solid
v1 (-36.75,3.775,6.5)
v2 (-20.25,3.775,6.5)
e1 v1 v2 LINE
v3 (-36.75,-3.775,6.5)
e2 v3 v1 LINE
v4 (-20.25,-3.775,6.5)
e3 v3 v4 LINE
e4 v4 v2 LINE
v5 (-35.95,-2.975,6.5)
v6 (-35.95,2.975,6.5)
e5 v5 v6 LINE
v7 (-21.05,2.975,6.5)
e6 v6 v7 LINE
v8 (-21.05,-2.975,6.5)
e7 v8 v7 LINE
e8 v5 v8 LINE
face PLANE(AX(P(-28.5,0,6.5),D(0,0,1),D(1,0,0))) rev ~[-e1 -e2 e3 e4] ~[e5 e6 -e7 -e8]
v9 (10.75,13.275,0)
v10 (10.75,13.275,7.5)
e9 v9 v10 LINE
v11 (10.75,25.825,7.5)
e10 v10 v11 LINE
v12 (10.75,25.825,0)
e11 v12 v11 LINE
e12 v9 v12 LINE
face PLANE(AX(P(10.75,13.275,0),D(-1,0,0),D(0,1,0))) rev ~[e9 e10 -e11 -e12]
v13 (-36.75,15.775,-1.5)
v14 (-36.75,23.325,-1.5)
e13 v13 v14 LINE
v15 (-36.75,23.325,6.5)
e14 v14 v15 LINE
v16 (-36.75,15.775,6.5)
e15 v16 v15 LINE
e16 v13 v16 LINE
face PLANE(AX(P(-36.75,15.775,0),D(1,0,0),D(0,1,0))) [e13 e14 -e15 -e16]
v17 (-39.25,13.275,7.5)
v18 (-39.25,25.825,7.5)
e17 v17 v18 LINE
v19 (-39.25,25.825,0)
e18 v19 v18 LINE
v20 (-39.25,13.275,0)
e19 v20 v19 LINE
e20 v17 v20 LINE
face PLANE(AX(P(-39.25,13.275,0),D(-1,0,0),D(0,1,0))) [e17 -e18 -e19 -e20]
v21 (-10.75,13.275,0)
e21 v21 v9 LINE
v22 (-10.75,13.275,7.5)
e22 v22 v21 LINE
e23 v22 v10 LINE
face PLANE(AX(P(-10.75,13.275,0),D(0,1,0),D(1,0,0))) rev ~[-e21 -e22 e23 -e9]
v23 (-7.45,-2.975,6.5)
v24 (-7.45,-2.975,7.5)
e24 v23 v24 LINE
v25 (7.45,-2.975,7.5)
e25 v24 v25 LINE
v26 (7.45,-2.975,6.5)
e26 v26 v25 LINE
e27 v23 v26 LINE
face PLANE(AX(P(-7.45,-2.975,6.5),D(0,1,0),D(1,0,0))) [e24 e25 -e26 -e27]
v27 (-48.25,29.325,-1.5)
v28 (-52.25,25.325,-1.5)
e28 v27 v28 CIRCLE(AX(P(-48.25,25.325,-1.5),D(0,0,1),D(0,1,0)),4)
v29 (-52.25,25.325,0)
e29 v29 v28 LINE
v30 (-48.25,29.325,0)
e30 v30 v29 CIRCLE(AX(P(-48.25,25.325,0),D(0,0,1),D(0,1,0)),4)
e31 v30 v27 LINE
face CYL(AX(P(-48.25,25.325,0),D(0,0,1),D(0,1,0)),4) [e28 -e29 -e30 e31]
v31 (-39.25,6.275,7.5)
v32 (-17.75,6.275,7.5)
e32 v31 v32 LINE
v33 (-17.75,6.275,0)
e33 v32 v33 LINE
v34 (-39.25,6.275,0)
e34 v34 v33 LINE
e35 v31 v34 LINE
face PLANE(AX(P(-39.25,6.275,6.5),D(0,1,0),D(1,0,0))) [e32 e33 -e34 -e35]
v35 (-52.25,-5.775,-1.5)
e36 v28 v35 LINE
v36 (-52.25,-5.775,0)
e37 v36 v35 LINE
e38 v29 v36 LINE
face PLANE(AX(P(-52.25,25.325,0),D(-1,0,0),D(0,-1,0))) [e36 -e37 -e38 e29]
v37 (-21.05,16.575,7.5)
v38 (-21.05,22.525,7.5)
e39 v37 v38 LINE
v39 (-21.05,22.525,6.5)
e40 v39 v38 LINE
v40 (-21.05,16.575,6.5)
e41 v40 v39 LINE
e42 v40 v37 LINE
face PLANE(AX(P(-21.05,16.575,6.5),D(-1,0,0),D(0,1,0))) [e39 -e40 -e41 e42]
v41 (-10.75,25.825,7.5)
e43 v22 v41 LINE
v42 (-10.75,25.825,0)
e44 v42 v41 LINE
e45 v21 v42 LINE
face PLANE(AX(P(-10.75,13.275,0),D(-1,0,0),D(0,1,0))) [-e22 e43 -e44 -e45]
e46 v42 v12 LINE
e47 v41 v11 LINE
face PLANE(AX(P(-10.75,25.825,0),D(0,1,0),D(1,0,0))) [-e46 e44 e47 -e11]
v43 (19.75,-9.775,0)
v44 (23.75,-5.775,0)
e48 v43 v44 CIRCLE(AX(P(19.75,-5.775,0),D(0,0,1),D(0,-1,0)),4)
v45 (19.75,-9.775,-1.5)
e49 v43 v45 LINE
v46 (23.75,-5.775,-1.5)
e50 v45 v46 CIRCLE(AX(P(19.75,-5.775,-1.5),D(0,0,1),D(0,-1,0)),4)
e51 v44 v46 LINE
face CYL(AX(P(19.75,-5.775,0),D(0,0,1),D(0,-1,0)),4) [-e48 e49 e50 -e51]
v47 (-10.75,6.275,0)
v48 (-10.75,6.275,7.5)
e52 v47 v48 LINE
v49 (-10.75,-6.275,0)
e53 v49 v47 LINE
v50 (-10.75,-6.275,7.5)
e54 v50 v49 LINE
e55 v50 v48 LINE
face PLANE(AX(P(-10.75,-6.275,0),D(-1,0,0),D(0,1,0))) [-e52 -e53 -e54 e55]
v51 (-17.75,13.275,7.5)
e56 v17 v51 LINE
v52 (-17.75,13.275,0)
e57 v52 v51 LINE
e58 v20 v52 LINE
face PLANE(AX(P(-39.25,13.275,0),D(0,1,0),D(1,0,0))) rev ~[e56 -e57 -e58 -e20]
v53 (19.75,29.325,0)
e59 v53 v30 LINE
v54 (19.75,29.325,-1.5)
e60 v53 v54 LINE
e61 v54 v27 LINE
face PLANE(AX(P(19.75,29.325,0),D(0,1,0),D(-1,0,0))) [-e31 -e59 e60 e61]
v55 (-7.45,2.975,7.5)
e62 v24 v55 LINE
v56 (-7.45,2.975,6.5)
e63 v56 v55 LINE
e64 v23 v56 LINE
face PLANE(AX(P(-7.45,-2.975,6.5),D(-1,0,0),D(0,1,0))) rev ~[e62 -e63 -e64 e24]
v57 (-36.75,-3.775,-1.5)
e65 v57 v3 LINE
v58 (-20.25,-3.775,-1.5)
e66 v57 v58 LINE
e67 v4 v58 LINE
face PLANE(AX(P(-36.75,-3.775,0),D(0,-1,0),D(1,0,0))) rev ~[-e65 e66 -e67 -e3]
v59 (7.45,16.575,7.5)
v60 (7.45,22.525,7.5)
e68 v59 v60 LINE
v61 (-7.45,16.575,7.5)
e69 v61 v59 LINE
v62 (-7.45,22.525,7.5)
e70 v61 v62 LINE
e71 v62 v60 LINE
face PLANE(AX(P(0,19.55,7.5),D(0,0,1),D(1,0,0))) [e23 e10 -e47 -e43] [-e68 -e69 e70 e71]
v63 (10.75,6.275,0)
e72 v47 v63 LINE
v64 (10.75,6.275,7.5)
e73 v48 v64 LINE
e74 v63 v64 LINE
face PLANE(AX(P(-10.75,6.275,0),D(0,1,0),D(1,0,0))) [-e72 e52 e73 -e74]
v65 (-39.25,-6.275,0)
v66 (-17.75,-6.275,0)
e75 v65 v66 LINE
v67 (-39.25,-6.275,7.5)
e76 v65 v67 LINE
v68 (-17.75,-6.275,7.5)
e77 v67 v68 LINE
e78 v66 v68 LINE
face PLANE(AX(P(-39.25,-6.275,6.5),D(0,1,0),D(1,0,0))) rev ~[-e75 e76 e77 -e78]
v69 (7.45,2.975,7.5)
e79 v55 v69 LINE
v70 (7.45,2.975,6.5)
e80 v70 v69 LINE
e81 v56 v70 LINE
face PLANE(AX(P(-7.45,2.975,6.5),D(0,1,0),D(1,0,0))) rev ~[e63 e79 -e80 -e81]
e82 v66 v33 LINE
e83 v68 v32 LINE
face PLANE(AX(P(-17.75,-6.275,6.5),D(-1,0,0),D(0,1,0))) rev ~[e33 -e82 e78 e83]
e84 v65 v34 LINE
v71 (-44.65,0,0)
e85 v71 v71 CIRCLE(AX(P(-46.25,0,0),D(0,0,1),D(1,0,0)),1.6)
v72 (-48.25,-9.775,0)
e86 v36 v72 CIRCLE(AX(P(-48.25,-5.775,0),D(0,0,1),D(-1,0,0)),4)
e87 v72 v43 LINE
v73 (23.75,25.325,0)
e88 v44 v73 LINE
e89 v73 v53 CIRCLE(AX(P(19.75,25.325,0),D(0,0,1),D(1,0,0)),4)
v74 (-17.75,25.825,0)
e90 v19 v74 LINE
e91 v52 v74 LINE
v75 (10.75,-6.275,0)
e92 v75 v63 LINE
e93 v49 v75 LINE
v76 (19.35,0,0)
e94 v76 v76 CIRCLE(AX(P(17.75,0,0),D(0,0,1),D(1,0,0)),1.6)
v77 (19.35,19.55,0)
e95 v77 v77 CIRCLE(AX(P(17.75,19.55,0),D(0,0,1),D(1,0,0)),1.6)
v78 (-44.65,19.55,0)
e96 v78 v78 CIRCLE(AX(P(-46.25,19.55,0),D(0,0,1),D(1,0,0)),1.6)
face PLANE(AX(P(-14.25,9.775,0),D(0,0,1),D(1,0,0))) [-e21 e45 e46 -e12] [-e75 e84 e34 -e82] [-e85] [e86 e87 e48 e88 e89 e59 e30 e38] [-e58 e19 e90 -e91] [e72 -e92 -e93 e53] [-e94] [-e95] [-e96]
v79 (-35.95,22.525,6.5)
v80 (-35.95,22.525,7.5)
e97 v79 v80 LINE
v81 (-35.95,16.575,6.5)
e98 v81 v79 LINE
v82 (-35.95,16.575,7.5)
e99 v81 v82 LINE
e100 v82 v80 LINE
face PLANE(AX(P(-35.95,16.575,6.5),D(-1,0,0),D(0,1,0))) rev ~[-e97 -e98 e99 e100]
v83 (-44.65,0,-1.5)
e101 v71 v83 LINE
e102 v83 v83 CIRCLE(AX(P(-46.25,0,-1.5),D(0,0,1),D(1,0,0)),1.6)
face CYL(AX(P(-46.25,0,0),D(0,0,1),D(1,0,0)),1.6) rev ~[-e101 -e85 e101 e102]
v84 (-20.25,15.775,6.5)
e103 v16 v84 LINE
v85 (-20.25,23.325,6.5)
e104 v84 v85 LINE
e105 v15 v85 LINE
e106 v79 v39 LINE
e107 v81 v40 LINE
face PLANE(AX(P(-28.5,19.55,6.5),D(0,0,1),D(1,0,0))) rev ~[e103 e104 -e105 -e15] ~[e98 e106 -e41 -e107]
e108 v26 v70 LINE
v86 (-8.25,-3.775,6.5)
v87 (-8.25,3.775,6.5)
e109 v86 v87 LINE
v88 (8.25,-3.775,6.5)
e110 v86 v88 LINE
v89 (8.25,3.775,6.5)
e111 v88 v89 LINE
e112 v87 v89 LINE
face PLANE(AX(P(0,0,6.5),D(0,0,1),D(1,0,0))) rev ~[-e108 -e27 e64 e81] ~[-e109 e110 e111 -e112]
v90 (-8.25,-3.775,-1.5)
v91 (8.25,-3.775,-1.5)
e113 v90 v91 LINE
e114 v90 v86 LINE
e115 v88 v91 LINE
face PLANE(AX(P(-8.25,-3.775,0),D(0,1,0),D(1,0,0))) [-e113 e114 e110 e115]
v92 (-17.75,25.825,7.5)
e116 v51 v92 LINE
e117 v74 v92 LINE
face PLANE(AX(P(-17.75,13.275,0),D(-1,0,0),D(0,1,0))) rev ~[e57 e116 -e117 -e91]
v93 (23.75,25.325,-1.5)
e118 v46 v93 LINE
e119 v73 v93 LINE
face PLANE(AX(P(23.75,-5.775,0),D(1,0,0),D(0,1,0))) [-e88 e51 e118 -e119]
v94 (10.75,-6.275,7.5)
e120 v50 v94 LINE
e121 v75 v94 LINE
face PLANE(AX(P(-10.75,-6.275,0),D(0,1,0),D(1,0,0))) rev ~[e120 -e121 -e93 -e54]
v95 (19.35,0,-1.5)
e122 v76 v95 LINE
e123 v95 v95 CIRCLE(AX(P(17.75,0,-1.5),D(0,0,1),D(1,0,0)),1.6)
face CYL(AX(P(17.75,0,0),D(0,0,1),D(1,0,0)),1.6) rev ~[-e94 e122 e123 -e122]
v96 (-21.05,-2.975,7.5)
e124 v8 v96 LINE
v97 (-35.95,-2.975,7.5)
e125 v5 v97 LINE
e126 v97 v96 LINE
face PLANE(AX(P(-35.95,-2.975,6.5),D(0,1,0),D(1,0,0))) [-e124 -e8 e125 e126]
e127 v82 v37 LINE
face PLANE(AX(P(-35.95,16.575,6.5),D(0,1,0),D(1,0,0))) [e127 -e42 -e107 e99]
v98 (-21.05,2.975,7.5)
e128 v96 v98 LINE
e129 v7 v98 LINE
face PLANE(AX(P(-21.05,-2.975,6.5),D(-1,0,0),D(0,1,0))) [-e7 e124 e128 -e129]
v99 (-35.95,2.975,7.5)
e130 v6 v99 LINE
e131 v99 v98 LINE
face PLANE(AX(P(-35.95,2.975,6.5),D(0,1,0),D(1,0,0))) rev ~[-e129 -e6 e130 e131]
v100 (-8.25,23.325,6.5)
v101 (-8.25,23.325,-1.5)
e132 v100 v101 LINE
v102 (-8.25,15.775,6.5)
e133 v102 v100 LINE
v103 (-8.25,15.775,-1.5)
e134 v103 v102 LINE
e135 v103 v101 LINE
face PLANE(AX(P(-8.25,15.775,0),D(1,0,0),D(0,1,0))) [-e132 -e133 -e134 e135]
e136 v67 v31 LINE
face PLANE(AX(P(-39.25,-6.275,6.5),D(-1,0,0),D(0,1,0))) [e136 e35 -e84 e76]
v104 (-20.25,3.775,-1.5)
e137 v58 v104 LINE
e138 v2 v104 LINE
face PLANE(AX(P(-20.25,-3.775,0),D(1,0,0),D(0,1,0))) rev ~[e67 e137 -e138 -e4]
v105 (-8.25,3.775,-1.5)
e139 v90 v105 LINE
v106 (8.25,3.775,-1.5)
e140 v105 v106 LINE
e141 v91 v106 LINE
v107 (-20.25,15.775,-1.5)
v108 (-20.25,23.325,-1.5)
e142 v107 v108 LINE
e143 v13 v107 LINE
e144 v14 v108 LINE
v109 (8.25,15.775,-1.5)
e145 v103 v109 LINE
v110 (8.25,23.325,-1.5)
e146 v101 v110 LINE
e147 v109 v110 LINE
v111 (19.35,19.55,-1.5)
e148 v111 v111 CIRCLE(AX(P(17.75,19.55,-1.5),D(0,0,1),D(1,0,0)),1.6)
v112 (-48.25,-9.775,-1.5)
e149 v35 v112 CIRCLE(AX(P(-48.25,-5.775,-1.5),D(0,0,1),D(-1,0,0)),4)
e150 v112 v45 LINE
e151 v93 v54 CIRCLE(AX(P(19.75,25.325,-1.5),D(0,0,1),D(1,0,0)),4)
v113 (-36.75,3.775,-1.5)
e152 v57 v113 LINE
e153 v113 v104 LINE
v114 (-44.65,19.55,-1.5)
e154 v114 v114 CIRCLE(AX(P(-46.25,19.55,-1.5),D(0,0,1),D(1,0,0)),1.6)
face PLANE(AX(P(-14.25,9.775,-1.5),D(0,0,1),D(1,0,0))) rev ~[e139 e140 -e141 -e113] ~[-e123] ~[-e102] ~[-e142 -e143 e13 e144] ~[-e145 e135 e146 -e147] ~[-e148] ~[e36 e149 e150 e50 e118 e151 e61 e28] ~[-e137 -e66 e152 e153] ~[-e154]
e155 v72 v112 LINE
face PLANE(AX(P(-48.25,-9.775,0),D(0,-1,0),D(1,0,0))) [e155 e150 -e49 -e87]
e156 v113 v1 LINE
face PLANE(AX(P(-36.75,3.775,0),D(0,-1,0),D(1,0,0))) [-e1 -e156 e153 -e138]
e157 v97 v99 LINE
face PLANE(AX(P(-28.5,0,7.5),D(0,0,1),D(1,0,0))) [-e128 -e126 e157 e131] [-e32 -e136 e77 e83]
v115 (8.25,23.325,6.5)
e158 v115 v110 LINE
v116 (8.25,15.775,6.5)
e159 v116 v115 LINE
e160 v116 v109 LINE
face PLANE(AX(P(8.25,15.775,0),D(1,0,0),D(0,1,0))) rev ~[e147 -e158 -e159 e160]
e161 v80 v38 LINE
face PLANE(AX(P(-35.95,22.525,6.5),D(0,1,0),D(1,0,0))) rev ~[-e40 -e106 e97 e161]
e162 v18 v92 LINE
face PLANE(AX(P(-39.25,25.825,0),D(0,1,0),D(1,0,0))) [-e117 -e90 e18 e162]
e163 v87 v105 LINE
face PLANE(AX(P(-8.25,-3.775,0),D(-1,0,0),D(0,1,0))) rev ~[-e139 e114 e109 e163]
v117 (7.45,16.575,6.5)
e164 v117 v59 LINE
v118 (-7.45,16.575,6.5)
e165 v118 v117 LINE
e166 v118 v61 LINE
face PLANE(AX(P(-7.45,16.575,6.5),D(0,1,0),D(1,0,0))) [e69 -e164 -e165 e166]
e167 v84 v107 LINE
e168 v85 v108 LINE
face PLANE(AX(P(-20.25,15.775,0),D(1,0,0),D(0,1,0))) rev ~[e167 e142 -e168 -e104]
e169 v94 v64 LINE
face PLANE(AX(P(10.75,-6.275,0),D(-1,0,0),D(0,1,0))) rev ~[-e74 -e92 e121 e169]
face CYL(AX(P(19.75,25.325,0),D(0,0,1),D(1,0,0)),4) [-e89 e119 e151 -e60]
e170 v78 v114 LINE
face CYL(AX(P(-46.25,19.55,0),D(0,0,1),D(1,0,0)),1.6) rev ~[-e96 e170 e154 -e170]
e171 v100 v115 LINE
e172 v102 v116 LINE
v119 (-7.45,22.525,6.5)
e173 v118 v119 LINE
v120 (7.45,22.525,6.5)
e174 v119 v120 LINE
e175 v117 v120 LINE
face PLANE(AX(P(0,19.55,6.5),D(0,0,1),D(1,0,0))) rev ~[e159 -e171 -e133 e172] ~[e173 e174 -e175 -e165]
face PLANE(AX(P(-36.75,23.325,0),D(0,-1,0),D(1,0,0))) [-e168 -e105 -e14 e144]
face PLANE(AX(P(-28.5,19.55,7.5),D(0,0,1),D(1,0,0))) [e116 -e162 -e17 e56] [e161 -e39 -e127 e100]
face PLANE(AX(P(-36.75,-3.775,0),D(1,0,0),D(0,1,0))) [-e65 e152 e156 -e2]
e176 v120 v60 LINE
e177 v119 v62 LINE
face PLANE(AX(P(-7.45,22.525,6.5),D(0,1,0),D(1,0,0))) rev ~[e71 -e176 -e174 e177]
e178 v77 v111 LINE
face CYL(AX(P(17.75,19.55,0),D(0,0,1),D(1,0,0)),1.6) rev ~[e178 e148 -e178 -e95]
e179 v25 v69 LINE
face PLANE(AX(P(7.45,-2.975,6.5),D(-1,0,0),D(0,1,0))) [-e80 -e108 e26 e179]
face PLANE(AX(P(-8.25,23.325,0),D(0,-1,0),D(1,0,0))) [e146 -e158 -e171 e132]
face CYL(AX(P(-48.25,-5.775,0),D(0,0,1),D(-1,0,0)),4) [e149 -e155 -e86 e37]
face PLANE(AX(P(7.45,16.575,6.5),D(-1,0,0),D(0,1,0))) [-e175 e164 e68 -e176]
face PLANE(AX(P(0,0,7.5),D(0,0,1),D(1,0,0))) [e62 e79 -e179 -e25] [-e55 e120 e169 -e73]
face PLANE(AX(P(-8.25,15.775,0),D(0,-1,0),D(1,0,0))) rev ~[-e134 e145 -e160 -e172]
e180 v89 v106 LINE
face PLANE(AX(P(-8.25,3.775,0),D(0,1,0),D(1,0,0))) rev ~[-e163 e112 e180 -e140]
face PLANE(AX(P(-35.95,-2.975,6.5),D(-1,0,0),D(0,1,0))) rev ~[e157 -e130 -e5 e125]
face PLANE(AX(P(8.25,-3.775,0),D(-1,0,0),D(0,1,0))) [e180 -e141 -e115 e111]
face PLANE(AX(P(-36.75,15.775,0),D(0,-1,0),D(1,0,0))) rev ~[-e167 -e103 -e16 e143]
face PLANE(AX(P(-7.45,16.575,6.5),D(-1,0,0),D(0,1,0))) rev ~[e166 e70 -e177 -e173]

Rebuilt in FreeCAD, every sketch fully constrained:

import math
import FreeCAD as App
import Part
import Sketcher
Q = App.Units.Quantity

doc = App.newDocument("Part")
params = doc.addObject("Spreadsheet::Sheet", "Params")
for row, (alias, value) in enumerate([
    ("sketch1_radius", "4 mm"),
    ("sketch1_diameter", "3.2 mm"),
    ("sketch1_width", "68 mm"),
    ("sketch1_width2", "16.5 mm"),
    ("sketch1_height", "31.1 mm"),
    ("pad1_length", "1.5 mm"),
    ("sketch2_width", "21.5 mm"),
    ("sketch2_width2", "16.5 mm"),
    ("sketch2_height", "12.55 mm"),
    ("sketch2_height2", "7.55 mm"),
    ("pad2_length", "6.5 mm"),
    ("sketch3_width", "21.5 mm"),
    ("sketch3_width2", "14.9 mm"),
    ("sketch3_height", "12.55 mm"),
    ("sketch3_height2", "5.95 mm"),
    ("pad3_length", "1 mm"),
], start=1):
    params.set(f"A{row}", alias)
    params.set(f"B{row}", "=" + value)
    params.setAlias(f"B{row}", alias)

body = doc.addObject("PartDesign::Body", "Body")

# Sketch on XY plane
sketch1 = body.newObject("Sketcher::SketchObject", "Sketch")
sketch1.AttachmentSupport = (doc.getObject("XY_Plane"), [""])
sketch1.MapMode = "FlatFace"
sketch1.addGeometry([
    Part.ArcOfCircle(Part.Circle(App.Vector(19.8, -5.8, 0), App.Vector(0, 0, 1), 4), math.radians(-90), math.radians(0)),  # 0
    Part.LineSegment(App.Vector(23.8, -5.8, 0), App.Vector(23.8, 25.3, 0)),  # 1
    Part.ArcOfCircle(Part.Circle(App.Vector(19.8, 25.3, 0), App.Vector(0, 0, 1), 4), math.radians(0), math.radians(90)),  # 2
    Part.LineSegment(App.Vector(19.8, 29.3, 0), App.Vector(-48.2, 29.3, 0)),  # 3
    Part.ArcOfCircle(Part.Circle(App.Vector(-48.2, 25.3, 0), App.Vector(0, 0, 1), 4), math.radians(90), math.radians(180)),  # 4
    Part.LineSegment(App.Vector(-52.2, 25.3, 0), App.Vector(-52.2, -5.8, 0)),  # 5
    Part.ArcOfCircle(Part.Circle(App.Vector(-48.2, -5.8, 0), App.Vector(0, 0, 1), 4), math.radians(180), math.radians(270)),  # 6
    Part.LineSegment(App.Vector(-48.2, -9.8, 0), App.Vector(19.8, -9.8, 0)),  # 7
    Part.Circle(App.Vector(-46.2, 0, 0), App.Vector(0, 0, 1), 1.6),  # 8
    Part.LineSegment(App.Vector(-20.2, -3.8, 0), App.Vector(-36.8, -3.8, 0)),  # 9
    Part.LineSegment(App.Vector(-36.8, -3.8, 0), App.Vector(-36.8, 3.8, 0)),  # 10
    Part.LineSegment(App.Vector(-36.8, 3.8, 0), App.Vector(-20.2, 3.8, 0)),  # 11
    Part.LineSegment(App.Vector(-20.2, 3.8, 0), App.Vector(-20.2, -3.8, 0)),  # 12
    Part.LineSegment(App.Vector(8.2, -3.8, 0), App.Vector(-8.2, -3.8, 0)),  # 13
    Part.LineSegment(App.Vector(-8.2, -3.8, 0), App.Vector(-8.2, 3.8, 0)),  # 14
    Part.LineSegment(App.Vector(-8.2, 3.8, 0), App.Vector(8.2, 3.8, 0)),  # 15
    Part.LineSegment(App.Vector(8.2, 3.8, 0), App.Vector(8.2, -3.8, 0)),  # 16
    Part.Circle(App.Vector(17.8, 0, 0), App.Vector(0, 0, 1), 1.6),  # 17
    Part.Circle(App.Vector(-46.2, 19.6, 0), App.Vector(0, 0, 1), 1.6),  # 18
    Part.LineSegment(App.Vector(-20.2, 15.8, 0), App.Vector(-36.8, 15.8, 0)),  # 19
    Part.LineSegment(App.Vector(-36.8, 15.8, 0), App.Vector(-36.8, 23.3, 0)),  # 20
    Part.LineSegment(App.Vector(-36.8, 23.3, 0), App.Vector(-20.2, 23.3, 0)),  # 21
    Part.LineSegment(App.Vector(-20.2, 23.3, 0), App.Vector(-20.2, 15.8, 0)),  # 22
    Part.LineSegment(App.Vector(8.2, 15.8, 0), App.Vector(-8.2, 15.8, 0)),  # 23
    Part.LineSegment(App.Vector(-8.2, 15.8, 0), App.Vector(-8.2, 23.3, 0)),  # 24
    Part.LineSegment(App.Vector(-8.2, 23.3, 0), App.Vector(8.2, 23.3, 0)),  # 25
    Part.LineSegment(App.Vector(8.2, 23.3, 0), App.Vector(8.2, 15.8, 0)),  # 26
    Part.Circle(App.Vector(17.8, 19.6, 0), App.Vector(0, 0, 1), 1.6),  # 27
], False)
sketch1.addConstraint([
    Sketcher.Constraint("Tangent", 0, 2, 1, 1),
    Sketcher.Constraint("Tangent", 1, 2, 2, 1),
    Sketcher.Constraint("Tangent", 2, 2, 3, 1),
    Sketcher.Constraint("Tangent", 3, 2, 4, 1),
    Sketcher.Constraint("Tangent", 4, 2, 5, 1),
    Sketcher.Constraint("Tangent", 5, 2, 6, 1),
    Sketcher.Constraint("Tangent", 6, 2, 7, 1),
    Sketcher.Constraint("Tangent", 7, 2, 0, 1),
    Sketcher.Constraint("Coincident", 9, 2, 10, 1),
    Sketcher.Constraint("Coincident", 10, 2, 11, 1),
    Sketcher.Constraint("Coincident", 11, 2, 12, 1),
    Sketcher.Constraint("Coincident", 12, 2, 9, 1),
    Sketcher.Constraint("Coincident", 13, 2, 14, 1),
    Sketcher.Constraint("Coincident", 14, 2, 15, 1),
    Sketcher.Constraint("Coincident", 15, 2, 16, 1),
    Sketcher.Constraint("Coincident", 16, 2, 13, 1),
    Sketcher.Constraint("Coincident", 19, 2, 20, 1),
    Sketcher.Constraint("Coincident", 20, 2, 21, 1),
    Sketcher.Constraint("Coincident", 21, 2, 22, 1),
    Sketcher.Constraint("Coincident", 22, 2, 19, 1),
    Sketcher.Constraint("Coincident", 23, 2, 24, 1),
    Sketcher.Constraint("Coincident", 24, 2, 25, 1),
    Sketcher.Constraint("Coincident", 25, 2, 26, 1),
    Sketcher.Constraint("Coincident", 26, 2, 23, 1),
    Sketcher.Constraint("Vertical", 1),
    Sketcher.Constraint("Horizontal", 3),
    Sketcher.Constraint("Vertical", 5),
    Sketcher.Constraint("Horizontal", 7),
    Sketcher.Constraint("Horizontal", 9),
    Sketcher.Constraint("Vertical", 10),
    Sketcher.Constraint("Horizontal", 11),
    Sketcher.Constraint("Vertical", 12),
    Sketcher.Constraint("Horizontal", 13),
    Sketcher.Constraint("Vertical", 14),
    Sketcher.Constraint("Horizontal", 15),
    Sketcher.Constraint("Vertical", 16),
    Sketcher.Constraint("Horizontal", 19),
    Sketcher.Constraint("Vertical", 20),
    Sketcher.Constraint("Horizontal", 21),
    Sketcher.Constraint("Vertical", 22),
    Sketcher.Constraint("Horizontal", 23),
    Sketcher.Constraint("Vertical", 24),
    Sketcher.Constraint("Horizontal", 25),
    Sketcher.Constraint("Vertical", 26),
    Sketcher.Constraint("Equal", 0, 2),
    Sketcher.Constraint("Equal", 2, 4),
    Sketcher.Constraint("Equal", 4, 6),
    Sketcher.Constraint("Equal", 8, 17),
    Sketcher.Constraint("Equal", 17, 18),
    Sketcher.Constraint("Equal", 18, 27),
    Sketcher.Constraint("Symmetric", 13, 2, 15, 2, -1, 1),
    Sketcher.Constraint("PointOnObject", 8, 3, -1),
    Sketcher.Constraint("PointOnObject", 17, 3, -1),
    Sketcher.Constraint("Horizontal", 18, 3, 27, 3),
    Sketcher.Constraint("Horizontal", 12, 2, 13, 2),
    Sketcher.Constraint("Horizontal", 11, 2, 14, 2),
    Sketcher.Constraint("Horizontal", 22, 2, 23, 2),
    Sketcher.Constraint("Horizontal", 21, 2, 24, 2),
    Sketcher.Constraint("Vertical", 8, 3, 18, 3),
    Sketcher.Constraint("Vertical", 17, 3, 27, 3),
    Sketcher.Constraint("Vertical", 10, 2, 19, 2),
    Sketcher.Constraint("Vertical", 12, 2, 21, 2),
    Sketcher.Constraint("Vertical", 14, 2, 23, 2),
    Sketcher.Constraint("Vertical", 16, 2, 25, 2),
    Sketcher.Constraint("Equal", 11, 13),
    Sketcher.Constraint("Equal", 16, 20),
    Sketcher.Constraint("Radius", 0, Q("4 mm")),
    Sketcher.Constraint("Diameter", 8, Q("3.2 mm")),
    Sketcher.Constraint("DistanceX", 3, 2, 3, 1, Q("68 mm")),
    Sketcher.Constraint("DistanceX", 9, 2, 9, 1, Q("16.5 mm")),
    Sketcher.Constraint("DistanceY", 1, 1, 1, 2, Q("31.1 mm")),
    Sketcher.Constraint("DistanceX", 6, 3, 8, 3, Q("2 mm")),
    Sketcher.Constraint("DistanceX", 17, 3, 0, 3, Q("2 mm")),
    Sketcher.Constraint("DistanceY", 6, 3, 9, 2, Q("2 mm")),
    Sketcher.Constraint("DistanceX", 8, 3, 11, 2, Q("26 mm")),
    Sketcher.Constraint("DistanceX", 12, 2, 13, 2, Q("12 mm")),
    Sketcher.Constraint("DistanceY", 10, 2, 19, 2, Q("12 mm")),
    Sketcher.Constraint("DistanceY", 20, 2, 4, 3, Q("2 mm")),
    Sketcher.Constraint("DistanceY", -1, 1, 18, 3, Q("19.55 mm")),
])
sketch1.setExpression("Constraints[66]", "Params.sketch1_radius")
sketch1.setExpression("Constraints[67]", "Params.sketch1_diameter")
sketch1.setExpression("Constraints[68]", "Params.sketch1_width")
sketch1.setExpression("Constraints[69]", "Params.sketch1_width2")
sketch1.setExpression("Constraints[70]", "Params.sketch1_height")
pad1 = body.newObject("PartDesign::Pad", "Pad")
pad1.Profile = sketch1
pad1.setExpression("Length", "Params.pad1_length")
pad1.Reversed = True

# Sketch on XY plane
sketch2 = body.newObject("Sketcher::SketchObject", "Sketch001")
sketch2.AttachmentSupport = (doc.getObject("XY_Plane"), [""])
sketch2.MapMode = "FlatFace"
sketch2.addGeometry([
    Part.LineSegment(App.Vector(-11, 6, 0), App.Vector(-11, -6, 0)),  # 0
    Part.LineSegment(App.Vector(-11, -6, 0), App.Vector(11, -6, 0)),  # 1
    Part.LineSegment(App.Vector(11, -6, 0), App.Vector(11, 6, 0)),  # 2
    Part.LineSegment(App.Vector(11, 6, 0), App.Vector(-11, 6, 0)),  # 3
    Part.LineSegment(App.Vector(8, -4, 0), App.Vector(-8, -4, 0)),  # 4
    Part.LineSegment(App.Vector(-8, -4, 0), App.Vector(-8, 4, 0)),  # 5
    Part.LineSegment(App.Vector(-8, 4, 0), App.Vector(8, 4, 0)),  # 6
    Part.LineSegment(App.Vector(8, 4, 0), App.Vector(8, -4, 0)),  # 7
    Part.LineSegment(App.Vector(-39, 6, 0), App.Vector(-39, -6, 0)),  # 8
    Part.LineSegment(App.Vector(-39, -6, 0), App.Vector(-18, -6, 0)),  # 9
    Part.LineSegment(App.Vector(-18, -6, 0), App.Vector(-18, 6, 0)),  # 10
    Part.LineSegment(App.Vector(-18, 6, 0), App.Vector(-39, 6, 0)),  # 11
    Part.LineSegment(App.Vector(-20, -4, 0), App.Vector(-37, -4, 0)),  # 12
    Part.LineSegment(App.Vector(-37, -4, 0), App.Vector(-37, 4, 0)),  # 13
    Part.LineSegment(App.Vector(-37, 4, 0), App.Vector(-20, 4, 0)),  # 14
    Part.LineSegment(App.Vector(-20, 4, 0), App.Vector(-20, -4, 0)),  # 15
    Part.LineSegment(App.Vector(-39, 26, 0), App.Vector(-39, 13, 0)),  # 16
    Part.LineSegment(App.Vector(-39, 13, 0), App.Vector(-18, 13, 0)),  # 17
    Part.LineSegment(App.Vector(-18, 13, 0), App.Vector(-18, 26, 0)),  # 18
    Part.LineSegment(App.Vector(-18, 26, 0), App.Vector(-39, 26, 0)),  # 19
    Part.LineSegment(App.Vector(-20, 16, 0), App.Vector(-37, 16, 0)),  # 20
    Part.LineSegment(App.Vector(-37, 16, 0), App.Vector(-37, 23, 0)),  # 21
    Part.LineSegment(App.Vector(-37, 23, 0), App.Vector(-20, 23, 0)),  # 22
    Part.LineSegment(App.Vector(-20, 23, 0), App.Vector(-20, 16, 0)),  # 23
    Part.LineSegment(App.Vector(-11, 26, 0), App.Vector(-11, 13, 0)),  # 24
    Part.LineSegment(App.Vector(-11, 13, 0), App.Vector(11, 13, 0)),  # 25
    Part.LineSegment(App.Vector(11, 13, 0), App.Vector(11, 26, 0)),  # 26
    Part.LineSegment(App.Vector(11, 26, 0), App.Vector(-11, 26, 0)),  # 27
    Part.LineSegment(App.Vector(8, 16, 0), App.Vector(-8, 16, 0)),  # 28
    Part.LineSegment(App.Vector(-8, 16, 0), App.Vector(-8, 23, 0)),  # 29
    Part.LineSegment(App.Vector(-8, 23, 0), App.Vector(8, 23, 0)),  # 30
    Part.LineSegment(App.Vector(8, 23, 0), App.Vector(8, 16, 0)),  # 31
], False)
sketch2.addConstraint([
    Sketcher.Constraint("Coincident", 0, 2, 1, 1),
    Sketcher.Constraint("Coincident", 1, 2, 2, 1),
    Sketcher.Constraint("Coincident", 2, 2, 3, 1),
    Sketcher.Constraint("Coincident", 3, 2, 0, 1),
    Sketcher.Constraint("Coincident", 4, 2, 5, 1),
    Sketcher.Constraint("Coincident", 5, 2, 6, 1),
    Sketcher.Constraint("Coincident", 6, 2, 7, 1),
    Sketcher.Constraint("Coincident", 7, 2, 4, 1),
    Sketcher.Constraint("Coincident", 8, 2, 9, 1),
    Sketcher.Constraint("Coincident", 9, 2, 10, 1),
    Sketcher.Constraint("Coincident", 10, 2, 11, 1),
    Sketcher.Constraint("Coincident", 11, 2, 8, 1),
    Sketcher.Constraint("Coincident", 12, 2, 13, 1),
    Sketcher.Constraint("Coincident", 13, 2, 14, 1),
    Sketcher.Constraint("Coincident", 14, 2, 15, 1),
    Sketcher.Constraint("Coincident", 15, 2, 12, 1),
    Sketcher.Constraint("Coincident", 16, 2, 17, 1),
    Sketcher.Constraint("Coincident", 17, 2, 18, 1),
    Sketcher.Constraint("Coincident", 18, 2, 19, 1),
    Sketcher.Constraint("Coincident", 19, 2, 16, 1),
    Sketcher.Constraint("Coincident", 20, 2, 21, 1),
    Sketcher.Constraint("Coincident", 21, 2, 22, 1),
    Sketcher.Constraint("Coincident", 22, 2, 23, 1),
    Sketcher.Constraint("Coincident", 23, 2, 20, 1),
    Sketcher.Constraint("Coincident", 24, 2, 25, 1),
    Sketcher.Constraint("Coincident", 25, 2, 26, 1),
    Sketcher.Constraint("Coincident", 26, 2, 27, 1),
    Sketcher.Constraint("Coincident", 27, 2, 24, 1),
    Sketcher.Constraint("Coincident", 28, 2, 29, 1),
    Sketcher.Constraint("Coincident", 29, 2, 30, 1),
    Sketcher.Constraint("Coincident", 30, 2, 31, 1),
    Sketcher.Constraint("Coincident", 31, 2, 28, 1),
    Sketcher.Constraint("Vertical", 0),
    Sketcher.Constraint("Horizontal", 1),
    Sketcher.Constraint("Vertical", 2),
    Sketcher.Constraint("Horizontal", 3),
    Sketcher.Constraint("Horizontal", 4),
    Sketcher.Constraint("Vertical", 5),
    Sketcher.Constraint("Horizontal", 6),
    Sketcher.Constraint("Vertical", 7),
    Sketcher.Constraint("Vertical", 8),
    Sketcher.Constraint("Horizontal", 9),
    Sketcher.Constraint("Vertical", 10),
    Sketcher.Constraint("Horizontal", 11),
    Sketcher.Constraint("Horizontal", 12),
    Sketcher.Constraint("Vertical", 13),
    Sketcher.Constraint("Horizontal", 14),
    Sketcher.Constraint("Vertical", 15),
    Sketcher.Constraint("Vertical", 16),
    Sketcher.Constraint("Horizontal", 17),
    Sketcher.Constraint("Vertical", 18),
    Sketcher.Constraint("Horizontal", 19),
    Sketcher.Constraint("Horizontal", 20),
    Sketcher.Constraint("Vertical", 21),
    Sketcher.Constraint("Horizontal", 22),
    Sketcher.Constraint("Vertical", 23),
    Sketcher.Constraint("Vertical", 24),
    Sketcher.Constraint("Horizontal", 25),
    Sketcher.Constraint("Vertical", 26),
    Sketcher.Constraint("Horizontal", 27),
    Sketcher.Constraint("Horizontal", 28),
    Sketcher.Constraint("Vertical", 29),
    Sketcher.Constraint("Horizontal", 30),
    Sketcher.Constraint("Vertical", 31),
    Sketcher.Constraint("Symmetric", 0, 2, 2, 2, -1, 1),
    Sketcher.Constraint("Symmetric", 4, 2, 6, 2, -1, 1),
    Sketcher.Constraint("Horizontal", 1, 2, 8, 2),
    Sketcher.Constraint("Horizontal", 3, 2, 10, 2),
    Sketcher.Constraint("Horizontal", 7, 2, 12, 2),
    Sketcher.Constraint("Horizontal", 6, 2, 13, 2),
    Sketcher.Constraint("Horizontal", 17, 2, 24, 2),
    Sketcher.Constraint("Horizontal", 19, 2, 26, 2),
    Sketcher.Constraint("Horizontal", 23, 2, 28, 2),
    Sketcher.Constraint("Horizontal", 22, 2, 29, 2),
    Sketcher.Constraint("Vertical", 11, 2, 16, 2),
    Sketcher.Constraint("Vertical", 10, 2, 17, 2),
    Sketcher.Constraint("Vertical", 13, 2, 20, 2),
    Sketcher.Constraint("Vertical", 15, 2, 22, 2),
    Sketcher.Constraint("Vertical", 3, 2, 24, 2),
    Sketcher.Constraint("Vertical", 2, 2, 25, 2),
    Sketcher.Constraint("Vertical", 5, 2, 28, 2),
    Sketcher.Constraint("Vertical", 7, 2, 30, 2),
    Sketcher.Constraint("Equal", 3, 9),
    Sketcher.Constraint("Equal", 6, 12),
    Sketcher.Constraint("Equal", 10, 16),
    Sketcher.Constraint("Equal", 15, 21),
    Sketcher.Constraint("DistanceX", 1, 1, 1, 2, Q("21.5 mm")),
    Sketcher.Constraint("DistanceX", 4, 2, 4, 1, Q("16.5 mm")),
    Sketcher.Constraint("DistanceX", 8, 2, 4, 2, Q("31 mm")),
    Sketcher.Constraint("DistanceX", 12, 2, 9, 2, Q("19 mm")),
    Sketcher.Constraint("DistanceY", 11, 2, 16, 2, Q("7 mm")),
    Sketcher.Constraint("DistanceY", 13, 2, 20, 2, Q("12 mm")),
    Sketcher.Constraint("DistanceY", 0, 2, 0, 1, Q("12.55 mm")),
    Sketcher.Constraint("DistanceY", 5, 1, 5, 2, Q("7.55 mm")),
])
sketch2.setExpression("Constraints[86]", "Params.sketch2_width")
sketch2.setExpression("Constraints[87]", "Params.sketch2_width2")
sketch2.setExpression("Constraints[92]", "Params.sketch2_height")
sketch2.setExpression("Constraints[93]", "Params.sketch2_height2")
pad2 = body.newObject("PartDesign::Pad", "Pad001")
pad2.Profile = sketch2
pad2.setExpression("Length", "Params.pad2_length")

# Sketch on XY plane
sketch3 = body.newObject("Sketcher::SketchObject", "Sketch002")
sketch3.AttachmentSupport = (doc.getObject("XY_Plane"), [""])
sketch3.MapMode = "FlatFace"
sketch3.AttachmentOffset = App.Placement(App.Vector(0, 0, 6.5), App.Rotation())
sketch3.addGeometry([
    Part.LineSegment(App.Vector(-39, 6, 0), App.Vector(-39, -6, 0)),  # 0
    Part.LineSegment(App.Vector(-39, -6, 0), App.Vector(-18, -6, 0)),  # 1
    Part.LineSegment(App.Vector(-18, -6, 0), App.Vector(-18, 6, 0)),  # 2
    Part.LineSegment(App.Vector(-18, 6, 0), App.Vector(-39, 6, 0)),  # 3
    Part.LineSegment(App.Vector(-21, -3, 0), App.Vector(-36, -3, 0)),  # 4
    Part.LineSegment(App.Vector(-36, -3, 0), App.Vector(-36, 3, 0)),  # 5
    Part.LineSegment(App.Vector(-36, 3, 0), App.Vector(-21, 3, 0)),  # 6
    Part.LineSegment(App.Vector(-21, 3, 0), App.Vector(-21, -3, 0)),  # 7
    Part.LineSegment(App.Vector(-11, 6, 0), App.Vector(-11, -6, 0)),  # 8
    Part.LineSegment(App.Vector(-11, -6, 0), App.Vector(11, -6, 0)),  # 9
    Part.LineSegment(App.Vector(11, -6, 0), App.Vector(11, 6, 0)),  # 10
    Part.LineSegment(App.Vector(11, 6, 0), App.Vector(-11, 6, 0)),  # 11
    Part.LineSegment(App.Vector(7, -3, 0), App.Vector(-7, -3, 0)),  # 12
    Part.LineSegment(App.Vector(-7, -3, 0), App.Vector(-7, 3, 0)),  # 13
    Part.LineSegment(App.Vector(-7, 3, 0), App.Vector(7, 3, 0)),  # 14
    Part.LineSegment(App.Vector(7, 3, 0), App.Vector(7, -3, 0)),  # 15
    Part.LineSegment(App.Vector(-39, 26, 0), App.Vector(-39, 13, 0)),  # 16
    Part.LineSegment(App.Vector(-39, 13, 0), App.Vector(-18, 13, 0)),  # 17
    Part.LineSegment(App.Vector(-18, 13, 0), App.Vector(-18, 26, 0)),  # 18
    Part.LineSegment(App.Vector(-18, 26, 0), App.Vector(-39, 26, 0)),  # 19
    Part.LineSegment(App.Vector(-21, 17, 0), App.Vector(-36, 17, 0)),  # 20
    Part.LineSegment(App.Vector(-36, 17, 0), App.Vector(-36, 23, 0)),  # 21
    Part.LineSegment(App.Vector(-36, 23, 0), App.Vector(-21, 23, 0)),  # 22
    Part.LineSegment(App.Vector(-21, 23, 0), App.Vector(-21, 17, 0)),  # 23
    Part.LineSegment(App.Vector(-11, 26, 0), App.Vector(-11, 13, 0)),  # 24
    Part.LineSegment(App.Vector(-11, 13, 0), App.Vector(11, 13, 0)),  # 25
    Part.LineSegment(App.Vector(11, 13, 0), App.Vector(11, 26, 0)),  # 26
    Part.LineSegment(App.Vector(11, 26, 0), App.Vector(-11, 26, 0)),  # 27
    Part.LineSegment(App.Vector(7, 17, 0), App.Vector(-7, 17, 0)),  # 28
    Part.LineSegment(App.Vector(-7, 17, 0), App.Vector(-7, 23, 0)),  # 29
    Part.LineSegment(App.Vector(-7, 23, 0), App.Vector(7, 23, 0)),  # 30
    Part.LineSegment(App.Vector(7, 23, 0), App.Vector(7, 17, 0)),  # 31
], False)
sketch3.addConstraint([
    Sketcher.Constraint("Coincident", 0, 2, 1, 1),
    Sketcher.Constraint("Coincident", 1, 2, 2, 1),
    Sketcher.Constraint("Coincident", 2, 2, 3, 1),
    Sketcher.Constraint("Coincident", 3, 2, 0, 1),
    Sketcher.Constraint("Coincident", 4, 2, 5, 1),
    Sketcher.Constraint("Coincident", 5, 2, 6, 1),
    Sketcher.Constraint("Coincident", 6, 2, 7, 1),
    Sketcher.Constraint("Coincident", 7, 2, 4, 1),
    Sketcher.Constraint("Coincident", 8, 2, 9, 1),
    Sketcher.Constraint("Coincident", 9, 2, 10, 1),
    Sketcher.Constraint("Coincident", 10, 2, 11, 1),
    Sketcher.Constraint("Coincident", 11, 2, 8, 1),
    Sketcher.Constraint("Coincident", 12, 2, 13, 1),
    Sketcher.Constraint("Coincident", 13, 2, 14, 1),
    Sketcher.Constraint("Coincident", 14, 2, 15, 1),
    Sketcher.Constraint("Coincident", 15, 2, 12, 1),
    Sketcher.Constraint("Coincident", 16, 2, 17, 1),
    Sketcher.Constraint("Coincident", 17, 2, 18, 1),
    Sketcher.Constraint("Coincident", 18, 2, 19, 1),
    Sketcher.Constraint("Coincident", 19, 2, 16, 1),
    Sketcher.Constraint("Coincident", 20, 2, 21, 1),
    Sketcher.Constraint("Coincident", 21, 2, 22, 1),
    Sketcher.Constraint("Coincident", 22, 2, 23, 1),
    Sketcher.Constraint("Coincident", 23, 2, 20, 1),
    Sketcher.Constraint("Coincident", 24, 2, 25, 1),
    Sketcher.Constraint("Coincident", 25, 2, 26, 1),
    Sketcher.Constraint("Coincident", 26, 2, 27, 1),
    Sketcher.Constraint("Coincident", 27, 2, 24, 1),
    Sketcher.Constraint("Coincident", 28, 2, 29, 1),
    Sketcher.Constraint("Coincident", 29, 2, 30, 1),
    Sketcher.Constraint("Coincident", 30, 2, 31, 1),
    Sketcher.Constraint("Coincident", 31, 2, 28, 1),
    Sketcher.Constraint("Vertical", 0),
    Sketcher.Constraint("Horizontal", 1),
    Sketcher.Constraint("Vertical", 2),
    Sketcher.Constraint("Horizontal", 3),
    Sketcher.Constraint("Horizontal", 4),
    Sketcher.Constraint("Vertical", 5),
    Sketcher.Constraint("Horizontal", 6),
    Sketcher.Constraint("Vertical", 7),
    Sketcher.Constraint("Vertical", 8),
    Sketcher.Constraint("Horizontal", 9),
    Sketcher.Constraint("Vertical", 10),
    Sketcher.Constraint("Horizontal", 11),
    Sketcher.Constraint("Horizontal", 12),
    Sketcher.Constraint("Vertical", 13),
    Sketcher.Constraint("Horizontal", 14),
    Sketcher.Constraint("Vertical", 15),
    Sketcher.Constraint("Vertical", 16),
    Sketcher.Constraint("Horizontal", 17),
    Sketcher.Constraint("Vertical", 18),
    Sketcher.Constraint("Horizontal", 19),
    Sketcher.Constraint("Horizontal", 20),
    Sketcher.Constraint("Vertical", 21),
    Sketcher.Constraint("Horizontal", 22),
    Sketcher.Constraint("Vertical", 23),
    Sketcher.Constraint("Vertical", 24),
    Sketcher.Constraint("Horizontal", 25),
    Sketcher.Constraint("Vertical", 26),
    Sketcher.Constraint("Horizontal", 27),
    Sketcher.Constraint("Horizontal", 28),
    Sketcher.Constraint("Vertical", 29),
    Sketcher.Constraint("Horizontal", 30),
    Sketcher.Constraint("Vertical", 31),
    Sketcher.Constraint("Symmetric", 8, 2, 10, 2, -1, 1),
    Sketcher.Constraint("Symmetric", 12, 2, 14, 2, -1, 1),
    Sketcher.Constraint("Horizontal", 1, 2, 8, 2),
    Sketcher.Constraint("Horizontal", 3, 2, 10, 2),
    Sketcher.Constraint("Horizontal", 7, 2, 12, 2),
    Sketcher.Constraint("Horizontal", 6, 2, 13, 2),
    Sketcher.Constraint("Horizontal", 17, 2, 24, 2),
    Sketcher.Constraint("Horizontal", 19, 2, 26, 2),
    Sketcher.Constraint("Horizontal", 23, 2, 28, 2),
    Sketcher.Constraint("Horizontal", 22, 2, 29, 2),
    Sketcher.Constraint("Vertical", 3, 2, 16, 2),
    Sketcher.Constraint("Vertical", 2, 2, 17, 2),
    Sketcher.Constraint("Vertical", 5, 2, 20, 2),
    Sketcher.Constraint("Vertical", 7, 2, 22, 2),
    Sketcher.Constraint("Vertical", 11, 2, 24, 2),
    Sketcher.Constraint("Vertical", 10, 2, 25, 2),
    Sketcher.Constraint("Vertical", 13, 2, 28, 2),
    Sketcher.Constraint("Vertical", 15, 2, 30, 2),
    Sketcher.Constraint("Equal", 3, 9),
    Sketcher.Constraint("Equal", 6, 12),
    Sketcher.Constraint("Equal", 10, 16),
    Sketcher.Constraint("Equal", 15, 21),
    Sketcher.Constraint("DistanceX", 1, 1, 1, 2, Q("21.5 mm")),
    Sketcher.Constraint("DistanceX", 4, 2, 4, 1, Q("14.9 mm")),
    Sketcher.Constraint("DistanceX", 1, 2, 8, 2, Q("7 mm")),
    Sketcher.Constraint("DistanceY", 3, 2, 16, 2, Q("7 mm")),
    Sketcher.Constraint("DistanceY", 0, 2, 0, 1, Q("12.55 mm")),
    Sketcher.Constraint("DistanceY", 5, 1, 5, 2, Q("5.95 mm")),
    Sketcher.Constraint("DistanceX", 0, 2, 4, 2, Q("3.3 mm")),
    Sketcher.Constraint("DistanceY", 16, 2, 20, 2, Q("3.3 mm")),
])
sketch3.setExpression("Constraints[86]", "Params.sketch3_width")
sketch3.setExpression("Constraints[87]", "Params.sketch3_width2")
sketch3.setExpression("Constraints[90]", "Params.sketch3_height")
sketch3.setExpression("Constraints[91]", "Params.sketch3_height2")
pad3 = body.newObject("PartDesign::Pad", "Pad002")
pad3.Profile = sketch3
pad3.setExpression("Length", "Params.pad3_length")

doc.recompute()
